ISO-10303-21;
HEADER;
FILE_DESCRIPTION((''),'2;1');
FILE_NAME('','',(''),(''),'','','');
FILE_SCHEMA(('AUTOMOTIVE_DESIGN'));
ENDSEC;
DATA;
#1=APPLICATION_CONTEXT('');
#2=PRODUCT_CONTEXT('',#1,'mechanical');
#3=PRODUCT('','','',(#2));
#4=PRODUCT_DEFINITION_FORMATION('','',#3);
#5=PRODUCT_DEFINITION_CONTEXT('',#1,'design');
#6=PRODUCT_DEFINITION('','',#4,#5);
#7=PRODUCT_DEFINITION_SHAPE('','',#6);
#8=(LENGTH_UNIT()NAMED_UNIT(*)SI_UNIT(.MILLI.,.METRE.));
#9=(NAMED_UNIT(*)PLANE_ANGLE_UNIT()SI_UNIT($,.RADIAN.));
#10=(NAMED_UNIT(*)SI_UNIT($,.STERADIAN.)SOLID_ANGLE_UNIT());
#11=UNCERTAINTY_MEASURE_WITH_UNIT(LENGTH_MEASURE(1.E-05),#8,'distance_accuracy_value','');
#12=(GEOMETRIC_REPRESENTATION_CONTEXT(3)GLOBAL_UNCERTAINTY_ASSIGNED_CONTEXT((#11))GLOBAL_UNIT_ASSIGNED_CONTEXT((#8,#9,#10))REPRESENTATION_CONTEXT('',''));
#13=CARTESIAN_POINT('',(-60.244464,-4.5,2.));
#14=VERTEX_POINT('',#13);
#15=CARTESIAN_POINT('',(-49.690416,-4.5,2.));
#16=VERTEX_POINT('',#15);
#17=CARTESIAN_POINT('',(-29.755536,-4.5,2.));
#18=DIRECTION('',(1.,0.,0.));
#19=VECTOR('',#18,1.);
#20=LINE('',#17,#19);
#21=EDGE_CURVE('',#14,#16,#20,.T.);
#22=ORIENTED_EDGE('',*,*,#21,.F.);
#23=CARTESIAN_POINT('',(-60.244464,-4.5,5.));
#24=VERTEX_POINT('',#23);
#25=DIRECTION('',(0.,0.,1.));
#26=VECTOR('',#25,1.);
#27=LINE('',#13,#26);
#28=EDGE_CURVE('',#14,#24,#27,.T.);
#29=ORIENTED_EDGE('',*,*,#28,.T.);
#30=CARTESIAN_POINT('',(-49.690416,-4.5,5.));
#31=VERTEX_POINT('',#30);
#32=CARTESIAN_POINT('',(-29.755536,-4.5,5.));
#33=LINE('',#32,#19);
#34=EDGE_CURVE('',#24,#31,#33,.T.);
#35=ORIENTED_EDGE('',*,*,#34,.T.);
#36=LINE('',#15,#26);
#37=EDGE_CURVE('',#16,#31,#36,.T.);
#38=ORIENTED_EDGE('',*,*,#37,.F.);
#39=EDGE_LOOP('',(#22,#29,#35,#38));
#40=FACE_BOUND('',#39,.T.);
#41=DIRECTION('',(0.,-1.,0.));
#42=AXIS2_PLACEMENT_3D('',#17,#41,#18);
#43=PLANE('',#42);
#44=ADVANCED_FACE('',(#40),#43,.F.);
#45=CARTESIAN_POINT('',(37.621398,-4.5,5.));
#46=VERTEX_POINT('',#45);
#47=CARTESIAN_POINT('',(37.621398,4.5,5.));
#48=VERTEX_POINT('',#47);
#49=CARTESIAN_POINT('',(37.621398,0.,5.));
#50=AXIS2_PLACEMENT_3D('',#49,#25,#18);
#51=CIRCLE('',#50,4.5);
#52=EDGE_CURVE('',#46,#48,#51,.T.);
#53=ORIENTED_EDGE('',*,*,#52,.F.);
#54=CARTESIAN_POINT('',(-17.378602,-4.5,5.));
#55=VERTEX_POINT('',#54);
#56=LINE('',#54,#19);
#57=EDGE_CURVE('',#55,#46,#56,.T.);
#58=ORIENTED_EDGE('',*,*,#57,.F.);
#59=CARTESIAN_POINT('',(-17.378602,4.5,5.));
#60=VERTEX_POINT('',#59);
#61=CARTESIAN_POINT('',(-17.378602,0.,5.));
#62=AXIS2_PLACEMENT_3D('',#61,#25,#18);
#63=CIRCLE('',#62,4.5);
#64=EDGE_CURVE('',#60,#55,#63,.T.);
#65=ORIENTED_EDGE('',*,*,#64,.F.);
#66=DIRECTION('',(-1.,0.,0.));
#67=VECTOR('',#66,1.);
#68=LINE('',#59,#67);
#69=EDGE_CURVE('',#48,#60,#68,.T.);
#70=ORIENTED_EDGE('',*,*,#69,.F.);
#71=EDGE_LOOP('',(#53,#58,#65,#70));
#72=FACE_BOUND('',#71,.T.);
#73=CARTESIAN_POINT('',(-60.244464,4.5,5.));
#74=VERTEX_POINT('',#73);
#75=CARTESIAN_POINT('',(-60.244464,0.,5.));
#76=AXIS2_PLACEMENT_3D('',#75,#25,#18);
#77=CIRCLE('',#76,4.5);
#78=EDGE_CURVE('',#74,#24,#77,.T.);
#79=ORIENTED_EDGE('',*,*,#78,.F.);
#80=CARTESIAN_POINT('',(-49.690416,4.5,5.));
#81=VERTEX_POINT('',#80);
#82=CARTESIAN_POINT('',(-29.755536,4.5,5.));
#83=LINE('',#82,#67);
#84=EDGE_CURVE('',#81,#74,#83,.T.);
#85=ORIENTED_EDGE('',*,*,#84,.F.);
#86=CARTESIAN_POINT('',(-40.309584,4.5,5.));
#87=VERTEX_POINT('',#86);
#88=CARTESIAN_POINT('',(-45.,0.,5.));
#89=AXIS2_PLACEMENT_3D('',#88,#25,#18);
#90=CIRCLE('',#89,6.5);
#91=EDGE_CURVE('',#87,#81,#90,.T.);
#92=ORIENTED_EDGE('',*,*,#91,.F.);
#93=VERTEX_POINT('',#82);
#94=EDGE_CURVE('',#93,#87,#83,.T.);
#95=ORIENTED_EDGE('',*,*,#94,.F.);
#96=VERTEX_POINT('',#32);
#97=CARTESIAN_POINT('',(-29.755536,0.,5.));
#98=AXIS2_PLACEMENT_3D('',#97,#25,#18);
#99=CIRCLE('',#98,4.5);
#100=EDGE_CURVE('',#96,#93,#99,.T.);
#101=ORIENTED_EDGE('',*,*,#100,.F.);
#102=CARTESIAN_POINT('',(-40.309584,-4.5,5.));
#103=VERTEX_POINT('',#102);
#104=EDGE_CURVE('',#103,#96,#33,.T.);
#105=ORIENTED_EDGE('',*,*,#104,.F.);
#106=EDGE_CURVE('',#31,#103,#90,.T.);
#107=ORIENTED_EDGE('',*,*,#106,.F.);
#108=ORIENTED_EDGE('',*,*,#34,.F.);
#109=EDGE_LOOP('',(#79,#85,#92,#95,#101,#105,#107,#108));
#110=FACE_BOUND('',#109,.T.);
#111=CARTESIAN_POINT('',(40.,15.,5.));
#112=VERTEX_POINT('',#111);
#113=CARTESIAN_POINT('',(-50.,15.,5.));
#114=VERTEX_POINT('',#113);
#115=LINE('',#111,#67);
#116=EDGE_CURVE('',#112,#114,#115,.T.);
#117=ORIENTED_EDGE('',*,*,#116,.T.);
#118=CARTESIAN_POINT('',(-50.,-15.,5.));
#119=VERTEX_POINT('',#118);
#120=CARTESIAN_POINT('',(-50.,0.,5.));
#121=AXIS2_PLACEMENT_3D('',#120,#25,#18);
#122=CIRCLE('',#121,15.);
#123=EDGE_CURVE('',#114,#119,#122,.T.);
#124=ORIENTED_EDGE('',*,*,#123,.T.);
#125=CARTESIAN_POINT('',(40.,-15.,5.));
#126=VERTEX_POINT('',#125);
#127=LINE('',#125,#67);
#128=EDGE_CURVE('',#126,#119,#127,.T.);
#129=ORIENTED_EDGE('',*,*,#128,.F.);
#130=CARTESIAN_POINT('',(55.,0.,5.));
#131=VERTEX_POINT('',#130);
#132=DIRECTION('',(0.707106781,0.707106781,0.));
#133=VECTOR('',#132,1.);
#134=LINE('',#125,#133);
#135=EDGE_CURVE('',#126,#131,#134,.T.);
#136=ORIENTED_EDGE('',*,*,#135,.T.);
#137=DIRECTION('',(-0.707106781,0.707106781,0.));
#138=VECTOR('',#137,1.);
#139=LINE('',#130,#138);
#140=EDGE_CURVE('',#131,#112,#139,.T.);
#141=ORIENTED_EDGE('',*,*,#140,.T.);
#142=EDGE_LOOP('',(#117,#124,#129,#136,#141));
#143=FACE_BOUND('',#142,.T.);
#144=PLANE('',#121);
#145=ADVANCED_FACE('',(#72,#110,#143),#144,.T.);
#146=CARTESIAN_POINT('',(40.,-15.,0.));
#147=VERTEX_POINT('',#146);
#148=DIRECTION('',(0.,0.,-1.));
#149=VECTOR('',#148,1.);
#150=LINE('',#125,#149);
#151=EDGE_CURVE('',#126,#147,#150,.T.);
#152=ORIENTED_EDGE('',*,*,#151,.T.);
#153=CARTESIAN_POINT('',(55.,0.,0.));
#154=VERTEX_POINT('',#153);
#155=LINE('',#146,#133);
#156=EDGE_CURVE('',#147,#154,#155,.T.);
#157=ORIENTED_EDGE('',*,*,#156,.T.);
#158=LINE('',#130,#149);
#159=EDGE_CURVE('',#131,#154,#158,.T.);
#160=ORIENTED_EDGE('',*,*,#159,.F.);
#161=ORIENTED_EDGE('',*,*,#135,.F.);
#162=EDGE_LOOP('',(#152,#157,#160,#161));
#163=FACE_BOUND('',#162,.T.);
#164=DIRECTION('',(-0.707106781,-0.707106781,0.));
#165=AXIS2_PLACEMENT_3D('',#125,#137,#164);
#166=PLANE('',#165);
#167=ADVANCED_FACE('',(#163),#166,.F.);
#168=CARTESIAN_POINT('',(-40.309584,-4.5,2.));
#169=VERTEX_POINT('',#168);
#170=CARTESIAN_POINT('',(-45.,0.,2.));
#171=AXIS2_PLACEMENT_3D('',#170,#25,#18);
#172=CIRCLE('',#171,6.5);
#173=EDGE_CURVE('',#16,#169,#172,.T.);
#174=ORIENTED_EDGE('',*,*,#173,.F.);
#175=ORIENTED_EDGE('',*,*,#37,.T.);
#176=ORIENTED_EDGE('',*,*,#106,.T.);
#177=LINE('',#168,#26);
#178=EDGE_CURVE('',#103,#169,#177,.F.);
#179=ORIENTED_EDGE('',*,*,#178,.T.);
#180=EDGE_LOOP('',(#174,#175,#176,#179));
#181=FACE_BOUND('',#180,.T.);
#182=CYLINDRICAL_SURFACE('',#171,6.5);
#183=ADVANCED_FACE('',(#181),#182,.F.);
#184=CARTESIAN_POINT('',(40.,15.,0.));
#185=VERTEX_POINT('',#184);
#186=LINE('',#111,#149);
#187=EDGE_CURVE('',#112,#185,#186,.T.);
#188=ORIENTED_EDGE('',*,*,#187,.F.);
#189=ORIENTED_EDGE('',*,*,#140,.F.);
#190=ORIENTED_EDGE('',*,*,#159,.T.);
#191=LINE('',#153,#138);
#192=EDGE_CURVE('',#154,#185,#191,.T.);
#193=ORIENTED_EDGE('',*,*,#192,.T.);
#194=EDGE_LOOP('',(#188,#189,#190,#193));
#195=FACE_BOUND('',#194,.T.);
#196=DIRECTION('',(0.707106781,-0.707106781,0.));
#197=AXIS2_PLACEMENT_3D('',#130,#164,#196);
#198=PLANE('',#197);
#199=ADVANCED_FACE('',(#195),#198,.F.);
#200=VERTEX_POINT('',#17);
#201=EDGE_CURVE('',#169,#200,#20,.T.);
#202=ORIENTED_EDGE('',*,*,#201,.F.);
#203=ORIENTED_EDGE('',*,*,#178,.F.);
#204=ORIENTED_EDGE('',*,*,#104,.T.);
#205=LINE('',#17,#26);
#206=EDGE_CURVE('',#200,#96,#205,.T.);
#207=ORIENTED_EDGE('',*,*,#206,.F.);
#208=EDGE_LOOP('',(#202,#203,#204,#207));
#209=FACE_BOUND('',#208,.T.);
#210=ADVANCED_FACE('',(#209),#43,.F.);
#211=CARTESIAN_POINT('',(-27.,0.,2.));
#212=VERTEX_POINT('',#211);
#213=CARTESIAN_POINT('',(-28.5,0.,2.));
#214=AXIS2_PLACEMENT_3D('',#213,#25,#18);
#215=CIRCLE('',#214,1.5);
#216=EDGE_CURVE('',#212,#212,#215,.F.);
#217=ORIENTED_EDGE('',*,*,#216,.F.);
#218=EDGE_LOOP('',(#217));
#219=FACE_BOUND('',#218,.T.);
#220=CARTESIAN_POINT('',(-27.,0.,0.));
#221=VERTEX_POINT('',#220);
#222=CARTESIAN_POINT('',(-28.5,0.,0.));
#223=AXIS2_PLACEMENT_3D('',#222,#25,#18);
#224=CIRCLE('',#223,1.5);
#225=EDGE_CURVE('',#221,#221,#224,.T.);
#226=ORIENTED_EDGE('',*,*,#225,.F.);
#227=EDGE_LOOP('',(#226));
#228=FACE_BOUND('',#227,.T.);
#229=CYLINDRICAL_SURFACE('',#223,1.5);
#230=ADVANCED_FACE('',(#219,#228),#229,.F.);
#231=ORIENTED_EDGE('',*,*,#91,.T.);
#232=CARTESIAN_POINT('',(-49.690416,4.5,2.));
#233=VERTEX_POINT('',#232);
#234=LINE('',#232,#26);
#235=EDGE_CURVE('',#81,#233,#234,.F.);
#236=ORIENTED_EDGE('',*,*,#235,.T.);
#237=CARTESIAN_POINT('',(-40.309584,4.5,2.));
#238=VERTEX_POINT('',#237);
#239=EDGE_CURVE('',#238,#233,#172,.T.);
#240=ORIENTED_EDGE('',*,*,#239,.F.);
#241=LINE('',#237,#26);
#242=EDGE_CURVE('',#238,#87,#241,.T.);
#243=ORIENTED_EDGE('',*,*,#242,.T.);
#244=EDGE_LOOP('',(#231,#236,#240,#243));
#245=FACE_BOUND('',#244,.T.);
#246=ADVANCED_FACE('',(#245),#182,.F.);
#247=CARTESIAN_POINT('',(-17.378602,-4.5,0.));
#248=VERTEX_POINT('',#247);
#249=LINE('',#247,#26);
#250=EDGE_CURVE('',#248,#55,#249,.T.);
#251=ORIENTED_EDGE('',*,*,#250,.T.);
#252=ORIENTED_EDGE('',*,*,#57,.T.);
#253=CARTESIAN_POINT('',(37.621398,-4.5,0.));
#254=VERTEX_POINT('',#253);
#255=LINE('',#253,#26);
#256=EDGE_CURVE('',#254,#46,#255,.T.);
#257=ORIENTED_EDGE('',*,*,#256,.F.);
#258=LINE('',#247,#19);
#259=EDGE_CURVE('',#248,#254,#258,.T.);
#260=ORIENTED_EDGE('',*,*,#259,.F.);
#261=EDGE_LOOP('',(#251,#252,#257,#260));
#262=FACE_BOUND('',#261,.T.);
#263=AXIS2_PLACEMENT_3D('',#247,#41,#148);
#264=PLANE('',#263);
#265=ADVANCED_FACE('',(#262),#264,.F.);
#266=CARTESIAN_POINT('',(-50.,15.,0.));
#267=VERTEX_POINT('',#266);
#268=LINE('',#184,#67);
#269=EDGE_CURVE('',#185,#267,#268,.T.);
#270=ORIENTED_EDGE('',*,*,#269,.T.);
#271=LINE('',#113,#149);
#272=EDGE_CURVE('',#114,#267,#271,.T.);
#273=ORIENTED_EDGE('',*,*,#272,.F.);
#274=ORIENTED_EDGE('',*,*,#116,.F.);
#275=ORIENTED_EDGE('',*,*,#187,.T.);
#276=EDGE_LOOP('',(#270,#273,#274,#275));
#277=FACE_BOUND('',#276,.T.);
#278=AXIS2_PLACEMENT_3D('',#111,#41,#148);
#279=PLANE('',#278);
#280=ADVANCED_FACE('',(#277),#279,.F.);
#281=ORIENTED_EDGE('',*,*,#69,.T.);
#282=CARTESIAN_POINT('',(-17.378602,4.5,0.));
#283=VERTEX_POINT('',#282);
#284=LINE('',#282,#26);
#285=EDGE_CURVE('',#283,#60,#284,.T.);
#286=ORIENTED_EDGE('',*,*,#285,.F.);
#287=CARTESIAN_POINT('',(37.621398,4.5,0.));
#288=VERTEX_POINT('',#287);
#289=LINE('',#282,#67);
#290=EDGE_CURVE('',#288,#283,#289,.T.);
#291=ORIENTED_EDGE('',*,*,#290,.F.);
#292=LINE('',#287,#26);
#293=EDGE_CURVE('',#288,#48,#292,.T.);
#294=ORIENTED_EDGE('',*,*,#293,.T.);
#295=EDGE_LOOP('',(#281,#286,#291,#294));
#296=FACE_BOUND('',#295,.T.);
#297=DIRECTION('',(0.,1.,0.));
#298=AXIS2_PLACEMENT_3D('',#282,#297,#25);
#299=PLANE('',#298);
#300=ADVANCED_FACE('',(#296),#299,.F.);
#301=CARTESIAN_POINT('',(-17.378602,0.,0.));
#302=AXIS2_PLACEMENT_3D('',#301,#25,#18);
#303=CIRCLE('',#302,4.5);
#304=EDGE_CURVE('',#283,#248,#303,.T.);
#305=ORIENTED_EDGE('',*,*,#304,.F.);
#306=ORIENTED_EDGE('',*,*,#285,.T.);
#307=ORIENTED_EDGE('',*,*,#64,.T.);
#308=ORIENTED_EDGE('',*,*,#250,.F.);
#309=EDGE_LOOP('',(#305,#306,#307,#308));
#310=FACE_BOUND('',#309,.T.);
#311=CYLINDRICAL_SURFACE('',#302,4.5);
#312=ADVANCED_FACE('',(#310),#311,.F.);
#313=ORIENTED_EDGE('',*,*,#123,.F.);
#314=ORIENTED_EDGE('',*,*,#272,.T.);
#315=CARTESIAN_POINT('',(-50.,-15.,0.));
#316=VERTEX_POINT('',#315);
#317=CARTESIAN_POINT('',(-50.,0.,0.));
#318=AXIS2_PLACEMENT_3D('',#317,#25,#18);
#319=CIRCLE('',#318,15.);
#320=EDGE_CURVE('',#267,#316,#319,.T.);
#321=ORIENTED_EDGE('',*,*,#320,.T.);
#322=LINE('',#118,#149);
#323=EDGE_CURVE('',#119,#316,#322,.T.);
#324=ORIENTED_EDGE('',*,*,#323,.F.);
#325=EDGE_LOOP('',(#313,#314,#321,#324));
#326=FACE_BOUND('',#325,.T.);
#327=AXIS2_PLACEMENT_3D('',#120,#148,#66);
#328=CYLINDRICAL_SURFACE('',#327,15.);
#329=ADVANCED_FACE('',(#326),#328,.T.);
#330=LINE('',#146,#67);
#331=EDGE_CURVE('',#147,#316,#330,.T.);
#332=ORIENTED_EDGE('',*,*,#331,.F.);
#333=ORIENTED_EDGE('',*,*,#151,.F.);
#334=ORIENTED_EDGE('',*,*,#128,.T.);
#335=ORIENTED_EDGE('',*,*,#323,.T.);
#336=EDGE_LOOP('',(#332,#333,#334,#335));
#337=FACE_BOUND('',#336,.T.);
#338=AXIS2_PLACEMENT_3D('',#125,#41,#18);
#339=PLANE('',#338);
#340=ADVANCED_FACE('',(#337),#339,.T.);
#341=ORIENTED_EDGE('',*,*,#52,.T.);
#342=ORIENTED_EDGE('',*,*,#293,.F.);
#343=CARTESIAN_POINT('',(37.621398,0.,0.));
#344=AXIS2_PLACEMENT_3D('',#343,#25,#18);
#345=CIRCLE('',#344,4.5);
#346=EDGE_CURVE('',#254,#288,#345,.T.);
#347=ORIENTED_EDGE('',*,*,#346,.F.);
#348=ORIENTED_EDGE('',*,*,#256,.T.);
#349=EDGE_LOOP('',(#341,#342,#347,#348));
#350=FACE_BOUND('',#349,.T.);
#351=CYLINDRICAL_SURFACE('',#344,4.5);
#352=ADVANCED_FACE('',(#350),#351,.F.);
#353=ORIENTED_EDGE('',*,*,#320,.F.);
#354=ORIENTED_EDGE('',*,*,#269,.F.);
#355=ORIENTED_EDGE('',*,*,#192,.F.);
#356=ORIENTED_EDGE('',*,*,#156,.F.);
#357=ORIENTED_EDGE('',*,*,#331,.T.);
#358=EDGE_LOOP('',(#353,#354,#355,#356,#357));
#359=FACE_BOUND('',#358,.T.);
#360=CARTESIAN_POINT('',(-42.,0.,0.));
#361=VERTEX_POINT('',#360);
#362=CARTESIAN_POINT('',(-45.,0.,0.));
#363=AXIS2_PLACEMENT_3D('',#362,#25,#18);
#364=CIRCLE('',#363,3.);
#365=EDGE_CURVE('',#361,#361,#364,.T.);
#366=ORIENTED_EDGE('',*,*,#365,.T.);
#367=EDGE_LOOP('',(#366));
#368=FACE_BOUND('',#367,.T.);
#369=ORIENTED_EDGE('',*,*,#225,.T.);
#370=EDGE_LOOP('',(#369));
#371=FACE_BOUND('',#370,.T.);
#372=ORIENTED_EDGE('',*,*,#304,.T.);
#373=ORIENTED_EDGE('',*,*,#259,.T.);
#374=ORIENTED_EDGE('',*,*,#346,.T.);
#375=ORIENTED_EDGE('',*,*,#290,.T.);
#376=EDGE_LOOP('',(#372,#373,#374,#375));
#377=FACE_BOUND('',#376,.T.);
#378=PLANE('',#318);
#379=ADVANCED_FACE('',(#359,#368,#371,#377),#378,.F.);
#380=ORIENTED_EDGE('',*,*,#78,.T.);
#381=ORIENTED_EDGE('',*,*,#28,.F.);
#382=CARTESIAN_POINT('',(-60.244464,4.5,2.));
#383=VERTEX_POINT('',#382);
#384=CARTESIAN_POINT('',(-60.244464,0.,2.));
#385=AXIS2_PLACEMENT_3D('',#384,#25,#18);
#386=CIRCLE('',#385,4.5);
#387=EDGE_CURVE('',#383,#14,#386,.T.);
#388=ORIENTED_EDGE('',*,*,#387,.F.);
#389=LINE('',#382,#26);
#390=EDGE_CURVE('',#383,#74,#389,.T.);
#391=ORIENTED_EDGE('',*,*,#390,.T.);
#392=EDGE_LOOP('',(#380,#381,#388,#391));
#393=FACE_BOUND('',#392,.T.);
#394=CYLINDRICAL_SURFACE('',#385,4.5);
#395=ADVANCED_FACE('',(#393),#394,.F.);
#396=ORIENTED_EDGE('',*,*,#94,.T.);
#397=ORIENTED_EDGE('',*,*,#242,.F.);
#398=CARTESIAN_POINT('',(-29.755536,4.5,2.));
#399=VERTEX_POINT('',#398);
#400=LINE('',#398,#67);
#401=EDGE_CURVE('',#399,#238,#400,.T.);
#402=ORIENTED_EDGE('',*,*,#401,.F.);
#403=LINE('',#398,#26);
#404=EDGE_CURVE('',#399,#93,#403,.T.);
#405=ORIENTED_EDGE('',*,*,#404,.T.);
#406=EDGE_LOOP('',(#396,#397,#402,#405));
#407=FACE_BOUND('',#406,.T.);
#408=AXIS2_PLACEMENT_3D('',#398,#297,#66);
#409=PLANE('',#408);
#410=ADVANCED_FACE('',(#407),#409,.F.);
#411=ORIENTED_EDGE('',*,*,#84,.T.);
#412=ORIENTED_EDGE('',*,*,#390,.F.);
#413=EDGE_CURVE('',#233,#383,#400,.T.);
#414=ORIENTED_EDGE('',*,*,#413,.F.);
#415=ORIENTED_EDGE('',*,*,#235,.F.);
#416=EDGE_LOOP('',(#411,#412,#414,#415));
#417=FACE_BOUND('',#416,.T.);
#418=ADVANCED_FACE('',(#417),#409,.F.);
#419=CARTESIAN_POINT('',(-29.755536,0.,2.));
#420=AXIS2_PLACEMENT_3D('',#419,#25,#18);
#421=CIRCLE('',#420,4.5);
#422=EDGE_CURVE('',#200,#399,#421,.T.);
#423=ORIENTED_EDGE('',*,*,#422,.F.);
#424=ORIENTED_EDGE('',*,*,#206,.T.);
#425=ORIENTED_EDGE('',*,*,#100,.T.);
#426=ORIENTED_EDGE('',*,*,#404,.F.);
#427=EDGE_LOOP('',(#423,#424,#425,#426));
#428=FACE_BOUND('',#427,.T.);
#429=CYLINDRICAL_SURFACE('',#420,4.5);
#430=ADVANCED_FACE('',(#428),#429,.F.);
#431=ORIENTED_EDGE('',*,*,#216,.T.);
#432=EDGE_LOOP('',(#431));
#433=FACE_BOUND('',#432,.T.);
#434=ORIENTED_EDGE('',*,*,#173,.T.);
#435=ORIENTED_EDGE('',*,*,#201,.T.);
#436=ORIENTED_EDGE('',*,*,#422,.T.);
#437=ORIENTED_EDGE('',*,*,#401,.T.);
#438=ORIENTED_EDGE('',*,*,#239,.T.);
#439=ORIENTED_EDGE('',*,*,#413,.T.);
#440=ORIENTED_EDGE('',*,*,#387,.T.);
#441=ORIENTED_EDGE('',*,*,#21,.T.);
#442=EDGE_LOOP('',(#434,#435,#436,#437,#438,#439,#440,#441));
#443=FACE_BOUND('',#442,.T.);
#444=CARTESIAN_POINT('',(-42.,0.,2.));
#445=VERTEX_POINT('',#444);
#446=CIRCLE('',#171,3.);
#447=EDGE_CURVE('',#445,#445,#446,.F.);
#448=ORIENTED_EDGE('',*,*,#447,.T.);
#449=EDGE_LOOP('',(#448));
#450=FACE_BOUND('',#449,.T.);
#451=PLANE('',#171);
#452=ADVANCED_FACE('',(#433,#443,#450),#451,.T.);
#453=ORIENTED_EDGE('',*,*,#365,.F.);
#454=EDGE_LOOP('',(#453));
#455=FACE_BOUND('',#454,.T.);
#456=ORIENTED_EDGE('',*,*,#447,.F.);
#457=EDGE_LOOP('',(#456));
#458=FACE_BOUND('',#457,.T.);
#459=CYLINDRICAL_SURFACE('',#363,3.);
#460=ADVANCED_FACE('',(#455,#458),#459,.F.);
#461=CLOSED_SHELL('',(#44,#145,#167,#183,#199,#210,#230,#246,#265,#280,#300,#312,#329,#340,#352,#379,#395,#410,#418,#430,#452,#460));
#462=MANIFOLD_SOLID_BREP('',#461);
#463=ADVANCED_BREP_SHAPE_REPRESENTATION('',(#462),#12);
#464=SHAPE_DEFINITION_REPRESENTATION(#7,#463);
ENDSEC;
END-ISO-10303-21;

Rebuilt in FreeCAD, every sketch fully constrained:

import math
import FreeCAD as App
import Part
import Sketcher

V = App.Vector

doc = App.newDocument("Part")
body = doc.addObject("PartDesign::Body", "Body")

# Sketch on XY plane
sketch1 = body.newObject("Sketcher::SketchObject", "Sketch")
sketch1.AttachmentSupport = (doc.getObject("XY_Plane"), [""])
sketch1.MapMode = "FlatFace"
sketch1.addGeometry([
    Part.LineSegment(V(40, -15, 0), V(55, 0, 0)),  # 0
    Part.LineSegment(V(55, 0, 0), V(40, 15, 0)),  # 1
    Part.LineSegment(V(40, 15, 0), V(-50, 15, 0)),  # 2
    Part.ArcOfCircle(Part.Circle(V(-50, 0, 0), V(0, 0, 1), 15), math.radians(90), math.radians(270)),  # 3
    Part.LineSegment(V(-50, -15, 0), V(40, -15, 0)),  # 4
], False)
sketch1.addConstraint([
    Sketcher.Constraint("Coincident", 0, 2, 1, 1),
    Sketcher.Constraint("Coincident", 1, 2, 2, 1),
    Sketcher.Constraint("Tangent", 2, 2, 3, 1),
    Sketcher.Constraint("Tangent", 3, 2, 4, 1),
    Sketcher.Constraint("Coincident", 4, 2, 0, 1),
    Sketcher.Constraint("Horizontal", 2),
    Sketcher.Constraint("Horizontal", 4),
    Sketcher.Constraint("Symmetric", 1, 2, 4, 2, -1),
    Sketcher.Constraint("PointOnObject", 0, 2, -1),
    Sketcher.Constraint("Perpendicular", 0, 1),
    Sketcher.Constraint("Radius", 3, 15.0),
    Sketcher.Constraint("DistanceX", 2, 2, 2, 1, 90.0),
    Sketcher.Constraint("DistanceX", 3, 3, -1, 1, 50.0),
])
pad1 = body.newObject("PartDesign::Pad", "Pad")
pad1.Profile = sketch1
pad1.Length = 5

# Sketch on XY plane
sketch2 = body.newObject("Sketcher::SketchObject", "Sketch001")
sketch2.AttachmentSupport = (doc.getObject("XY_Plane"), [""])
sketch2.MapMode = "FlatFace"
sketch2.AttachmentOffset = App.Placement(V(0, 0, 5), App.Rotation())
sketch2.addGeometry([
    Part.Circle(V(-45, 0, 0), V(0, 0, 1), 3),
    Part.Circle(V(-28.5, 0, 0), V(0, 0, 1), 1.5),
], False)
sketch2.addConstraint([
    Sketcher.Constraint("PointOnObject", 0, 3, -1),
    Sketcher.Constraint("PointOnObject", 1, 3, -1),
    Sketcher.Constraint("Diameter", 0, 6.0),
    Sketcher.Constraint("Diameter", 1, 3.0),
    Sketcher.Constraint("DistanceX", 0, 3, -1, 1, 45.0),
    Sketcher.Constraint("DistanceX", 1, 3, -1, 1, 28.5),
])
pocket1 = body.newObject("PartDesign::Pocket", "Pocket")
pocket1.Profile = sketch2
pocket1.Length = 5

# Sketch on XY plane
sketch3 = body.newObject("Sketcher::SketchObject", "Sketch002")
sketch3.AttachmentSupport = (doc.getObject("XY_Plane"), [""])
sketch3.MapMode = "FlatFace"
sketch3.AttachmentOffset = App.Placement(V(0, 0, 5), App.Rotation())
sketch3.addGeometry(Part.Circle(V(-45, 0, 0), V(0, 0, 1), 6), False)
sketch3.addConstraint([
    Sketcher.Constraint("PointOnObject", 0, 3, -1),
    Sketcher.Constraint("Diameter", 0, 13.0),
    Sketcher.Constraint("DistanceX", 0, 3, -1, 1, 45.0),
])
pocket2 = body.newObject("PartDesign::Pocket", "Pocket001")
pocket2.Profile = sketch3
pocket2.Length = 3

# Sketch on XY plane
sketch4 = body.newObject("Sketcher::SketchObject", "Sketch003")
sketch4.AttachmentSupport = (doc.getObject("XY_Plane"), [""])
sketch4.MapMode = "FlatFace"
sketch4.AttachmentOffset = App.Placement(V(0, 0, 5), App.Rotation())
sketch4.addGeometry([
    Part.LineSegment(V(-60.2, -4.5, 0), V(-29.8, -4.5, 0)),
    Part.ArcOfCircle(Part.Circle(V(-29.8, 0, 0), V(0, 0, 1), 4.5), math.radians(-90), math.radians(90)),
    Part.LineSegment(V(-29.8, 4.5, 0), V(-60.2, 4.5, 0)),
    Part.ArcOfCircle(Part.Circle(V(-60.2, 0, 0), V(0, 0, 1), 4.5), math.radians(90), math.radians(270)),
], False)
sketch4.addConstraint([
    Sketcher.Constraint("Tangent", 0, 2, 1, 1),
    Sketcher.Constraint("Tangent", 1, 2, 2, 1),
    Sketcher.Constraint("Tangent", 2, 2, 3, 1),
    Sketcher.Constraint("Tangent", 3, 2, 0, 1),
    Sketcher.Constraint("Horizontal", 0),
    Sketcher.Constraint("Horizontal", 2),
    Sketcher.Constraint("PointOnObject", 1, 3, -1),
    Sketcher.Constraint("Radius", 1, 4.5),
    Sketcher.Constraint("DistanceX", 0, 1, 0, 2, 30.488929),
    Sketcher.Constraint("DistanceX", 1, 3, -1, 1, 29.755536),
])
pocket3 = body.newObject("PartDesign::Pocket", "Pocket002")
pocket3.Profile = sketch4
pocket3.Length = 3

# Sketch on XY plane
sketch5 = body.newObject("Sketcher::SketchObject", "Sketch004")
sketch5.AttachmentSupport = (doc.getObject("XY_Plane"), [""])
sketch5.MapMode = "FlatFace"
sketch5.AttachmentOffset = App.Placement(V(0, 0, 5), App.Rotation())
sketch5.addGeometry([
    Part.LineSegment(V(37.6, 4.5, 0), V(-17.4, 4.5, 0)),
    Part.ArcOfCircle(Part.Circle(V(-17.4, 0, 0), V(0, 0, 1), 4.5), math.radians(90), math.radians(270)),
    Part.LineSegment(V(-17.4, -4.5, 0), V(37.6, -4.5, 0)),
    Part.ArcOfCircle(Part.Circle(V(37.6, 0, 0), V(0, 0, 1), 4.5), math.radians(-90), math.radians(90)),
], False)
sketch5.addConstraint([
    Sketcher.Constraint("Tangent", 0, 2, 1, 1),
    Sketcher.Constraint("Tangent", 1, 2, 2, 1),
    Sketcher.Constraint("Tangent", 2, 2, 3, 1),
    Sketcher.Constraint("Tangent", 3, 2, 0, 1),
    Sketcher.Constraint("Horizontal", 0),
    Sketcher.Constraint("Horizontal", 2),
    Sketcher.Constraint("PointOnObject", 1, 3, -1),
    Sketcher.Constraint("Radius", 1, 4.5),
    Sketcher.Constraint("DistanceX", 0, 2, 0, 1, 55.0),
    Sketcher.Constraint("DistanceX", 1, 3, -1, 1, 17.378602),
])
pocket4 = body.newObject("PartDesign::Pocket", "Pocket003")
pocket4.Profile = sketch5
pocket4.Length = 5

doc.recompute()
